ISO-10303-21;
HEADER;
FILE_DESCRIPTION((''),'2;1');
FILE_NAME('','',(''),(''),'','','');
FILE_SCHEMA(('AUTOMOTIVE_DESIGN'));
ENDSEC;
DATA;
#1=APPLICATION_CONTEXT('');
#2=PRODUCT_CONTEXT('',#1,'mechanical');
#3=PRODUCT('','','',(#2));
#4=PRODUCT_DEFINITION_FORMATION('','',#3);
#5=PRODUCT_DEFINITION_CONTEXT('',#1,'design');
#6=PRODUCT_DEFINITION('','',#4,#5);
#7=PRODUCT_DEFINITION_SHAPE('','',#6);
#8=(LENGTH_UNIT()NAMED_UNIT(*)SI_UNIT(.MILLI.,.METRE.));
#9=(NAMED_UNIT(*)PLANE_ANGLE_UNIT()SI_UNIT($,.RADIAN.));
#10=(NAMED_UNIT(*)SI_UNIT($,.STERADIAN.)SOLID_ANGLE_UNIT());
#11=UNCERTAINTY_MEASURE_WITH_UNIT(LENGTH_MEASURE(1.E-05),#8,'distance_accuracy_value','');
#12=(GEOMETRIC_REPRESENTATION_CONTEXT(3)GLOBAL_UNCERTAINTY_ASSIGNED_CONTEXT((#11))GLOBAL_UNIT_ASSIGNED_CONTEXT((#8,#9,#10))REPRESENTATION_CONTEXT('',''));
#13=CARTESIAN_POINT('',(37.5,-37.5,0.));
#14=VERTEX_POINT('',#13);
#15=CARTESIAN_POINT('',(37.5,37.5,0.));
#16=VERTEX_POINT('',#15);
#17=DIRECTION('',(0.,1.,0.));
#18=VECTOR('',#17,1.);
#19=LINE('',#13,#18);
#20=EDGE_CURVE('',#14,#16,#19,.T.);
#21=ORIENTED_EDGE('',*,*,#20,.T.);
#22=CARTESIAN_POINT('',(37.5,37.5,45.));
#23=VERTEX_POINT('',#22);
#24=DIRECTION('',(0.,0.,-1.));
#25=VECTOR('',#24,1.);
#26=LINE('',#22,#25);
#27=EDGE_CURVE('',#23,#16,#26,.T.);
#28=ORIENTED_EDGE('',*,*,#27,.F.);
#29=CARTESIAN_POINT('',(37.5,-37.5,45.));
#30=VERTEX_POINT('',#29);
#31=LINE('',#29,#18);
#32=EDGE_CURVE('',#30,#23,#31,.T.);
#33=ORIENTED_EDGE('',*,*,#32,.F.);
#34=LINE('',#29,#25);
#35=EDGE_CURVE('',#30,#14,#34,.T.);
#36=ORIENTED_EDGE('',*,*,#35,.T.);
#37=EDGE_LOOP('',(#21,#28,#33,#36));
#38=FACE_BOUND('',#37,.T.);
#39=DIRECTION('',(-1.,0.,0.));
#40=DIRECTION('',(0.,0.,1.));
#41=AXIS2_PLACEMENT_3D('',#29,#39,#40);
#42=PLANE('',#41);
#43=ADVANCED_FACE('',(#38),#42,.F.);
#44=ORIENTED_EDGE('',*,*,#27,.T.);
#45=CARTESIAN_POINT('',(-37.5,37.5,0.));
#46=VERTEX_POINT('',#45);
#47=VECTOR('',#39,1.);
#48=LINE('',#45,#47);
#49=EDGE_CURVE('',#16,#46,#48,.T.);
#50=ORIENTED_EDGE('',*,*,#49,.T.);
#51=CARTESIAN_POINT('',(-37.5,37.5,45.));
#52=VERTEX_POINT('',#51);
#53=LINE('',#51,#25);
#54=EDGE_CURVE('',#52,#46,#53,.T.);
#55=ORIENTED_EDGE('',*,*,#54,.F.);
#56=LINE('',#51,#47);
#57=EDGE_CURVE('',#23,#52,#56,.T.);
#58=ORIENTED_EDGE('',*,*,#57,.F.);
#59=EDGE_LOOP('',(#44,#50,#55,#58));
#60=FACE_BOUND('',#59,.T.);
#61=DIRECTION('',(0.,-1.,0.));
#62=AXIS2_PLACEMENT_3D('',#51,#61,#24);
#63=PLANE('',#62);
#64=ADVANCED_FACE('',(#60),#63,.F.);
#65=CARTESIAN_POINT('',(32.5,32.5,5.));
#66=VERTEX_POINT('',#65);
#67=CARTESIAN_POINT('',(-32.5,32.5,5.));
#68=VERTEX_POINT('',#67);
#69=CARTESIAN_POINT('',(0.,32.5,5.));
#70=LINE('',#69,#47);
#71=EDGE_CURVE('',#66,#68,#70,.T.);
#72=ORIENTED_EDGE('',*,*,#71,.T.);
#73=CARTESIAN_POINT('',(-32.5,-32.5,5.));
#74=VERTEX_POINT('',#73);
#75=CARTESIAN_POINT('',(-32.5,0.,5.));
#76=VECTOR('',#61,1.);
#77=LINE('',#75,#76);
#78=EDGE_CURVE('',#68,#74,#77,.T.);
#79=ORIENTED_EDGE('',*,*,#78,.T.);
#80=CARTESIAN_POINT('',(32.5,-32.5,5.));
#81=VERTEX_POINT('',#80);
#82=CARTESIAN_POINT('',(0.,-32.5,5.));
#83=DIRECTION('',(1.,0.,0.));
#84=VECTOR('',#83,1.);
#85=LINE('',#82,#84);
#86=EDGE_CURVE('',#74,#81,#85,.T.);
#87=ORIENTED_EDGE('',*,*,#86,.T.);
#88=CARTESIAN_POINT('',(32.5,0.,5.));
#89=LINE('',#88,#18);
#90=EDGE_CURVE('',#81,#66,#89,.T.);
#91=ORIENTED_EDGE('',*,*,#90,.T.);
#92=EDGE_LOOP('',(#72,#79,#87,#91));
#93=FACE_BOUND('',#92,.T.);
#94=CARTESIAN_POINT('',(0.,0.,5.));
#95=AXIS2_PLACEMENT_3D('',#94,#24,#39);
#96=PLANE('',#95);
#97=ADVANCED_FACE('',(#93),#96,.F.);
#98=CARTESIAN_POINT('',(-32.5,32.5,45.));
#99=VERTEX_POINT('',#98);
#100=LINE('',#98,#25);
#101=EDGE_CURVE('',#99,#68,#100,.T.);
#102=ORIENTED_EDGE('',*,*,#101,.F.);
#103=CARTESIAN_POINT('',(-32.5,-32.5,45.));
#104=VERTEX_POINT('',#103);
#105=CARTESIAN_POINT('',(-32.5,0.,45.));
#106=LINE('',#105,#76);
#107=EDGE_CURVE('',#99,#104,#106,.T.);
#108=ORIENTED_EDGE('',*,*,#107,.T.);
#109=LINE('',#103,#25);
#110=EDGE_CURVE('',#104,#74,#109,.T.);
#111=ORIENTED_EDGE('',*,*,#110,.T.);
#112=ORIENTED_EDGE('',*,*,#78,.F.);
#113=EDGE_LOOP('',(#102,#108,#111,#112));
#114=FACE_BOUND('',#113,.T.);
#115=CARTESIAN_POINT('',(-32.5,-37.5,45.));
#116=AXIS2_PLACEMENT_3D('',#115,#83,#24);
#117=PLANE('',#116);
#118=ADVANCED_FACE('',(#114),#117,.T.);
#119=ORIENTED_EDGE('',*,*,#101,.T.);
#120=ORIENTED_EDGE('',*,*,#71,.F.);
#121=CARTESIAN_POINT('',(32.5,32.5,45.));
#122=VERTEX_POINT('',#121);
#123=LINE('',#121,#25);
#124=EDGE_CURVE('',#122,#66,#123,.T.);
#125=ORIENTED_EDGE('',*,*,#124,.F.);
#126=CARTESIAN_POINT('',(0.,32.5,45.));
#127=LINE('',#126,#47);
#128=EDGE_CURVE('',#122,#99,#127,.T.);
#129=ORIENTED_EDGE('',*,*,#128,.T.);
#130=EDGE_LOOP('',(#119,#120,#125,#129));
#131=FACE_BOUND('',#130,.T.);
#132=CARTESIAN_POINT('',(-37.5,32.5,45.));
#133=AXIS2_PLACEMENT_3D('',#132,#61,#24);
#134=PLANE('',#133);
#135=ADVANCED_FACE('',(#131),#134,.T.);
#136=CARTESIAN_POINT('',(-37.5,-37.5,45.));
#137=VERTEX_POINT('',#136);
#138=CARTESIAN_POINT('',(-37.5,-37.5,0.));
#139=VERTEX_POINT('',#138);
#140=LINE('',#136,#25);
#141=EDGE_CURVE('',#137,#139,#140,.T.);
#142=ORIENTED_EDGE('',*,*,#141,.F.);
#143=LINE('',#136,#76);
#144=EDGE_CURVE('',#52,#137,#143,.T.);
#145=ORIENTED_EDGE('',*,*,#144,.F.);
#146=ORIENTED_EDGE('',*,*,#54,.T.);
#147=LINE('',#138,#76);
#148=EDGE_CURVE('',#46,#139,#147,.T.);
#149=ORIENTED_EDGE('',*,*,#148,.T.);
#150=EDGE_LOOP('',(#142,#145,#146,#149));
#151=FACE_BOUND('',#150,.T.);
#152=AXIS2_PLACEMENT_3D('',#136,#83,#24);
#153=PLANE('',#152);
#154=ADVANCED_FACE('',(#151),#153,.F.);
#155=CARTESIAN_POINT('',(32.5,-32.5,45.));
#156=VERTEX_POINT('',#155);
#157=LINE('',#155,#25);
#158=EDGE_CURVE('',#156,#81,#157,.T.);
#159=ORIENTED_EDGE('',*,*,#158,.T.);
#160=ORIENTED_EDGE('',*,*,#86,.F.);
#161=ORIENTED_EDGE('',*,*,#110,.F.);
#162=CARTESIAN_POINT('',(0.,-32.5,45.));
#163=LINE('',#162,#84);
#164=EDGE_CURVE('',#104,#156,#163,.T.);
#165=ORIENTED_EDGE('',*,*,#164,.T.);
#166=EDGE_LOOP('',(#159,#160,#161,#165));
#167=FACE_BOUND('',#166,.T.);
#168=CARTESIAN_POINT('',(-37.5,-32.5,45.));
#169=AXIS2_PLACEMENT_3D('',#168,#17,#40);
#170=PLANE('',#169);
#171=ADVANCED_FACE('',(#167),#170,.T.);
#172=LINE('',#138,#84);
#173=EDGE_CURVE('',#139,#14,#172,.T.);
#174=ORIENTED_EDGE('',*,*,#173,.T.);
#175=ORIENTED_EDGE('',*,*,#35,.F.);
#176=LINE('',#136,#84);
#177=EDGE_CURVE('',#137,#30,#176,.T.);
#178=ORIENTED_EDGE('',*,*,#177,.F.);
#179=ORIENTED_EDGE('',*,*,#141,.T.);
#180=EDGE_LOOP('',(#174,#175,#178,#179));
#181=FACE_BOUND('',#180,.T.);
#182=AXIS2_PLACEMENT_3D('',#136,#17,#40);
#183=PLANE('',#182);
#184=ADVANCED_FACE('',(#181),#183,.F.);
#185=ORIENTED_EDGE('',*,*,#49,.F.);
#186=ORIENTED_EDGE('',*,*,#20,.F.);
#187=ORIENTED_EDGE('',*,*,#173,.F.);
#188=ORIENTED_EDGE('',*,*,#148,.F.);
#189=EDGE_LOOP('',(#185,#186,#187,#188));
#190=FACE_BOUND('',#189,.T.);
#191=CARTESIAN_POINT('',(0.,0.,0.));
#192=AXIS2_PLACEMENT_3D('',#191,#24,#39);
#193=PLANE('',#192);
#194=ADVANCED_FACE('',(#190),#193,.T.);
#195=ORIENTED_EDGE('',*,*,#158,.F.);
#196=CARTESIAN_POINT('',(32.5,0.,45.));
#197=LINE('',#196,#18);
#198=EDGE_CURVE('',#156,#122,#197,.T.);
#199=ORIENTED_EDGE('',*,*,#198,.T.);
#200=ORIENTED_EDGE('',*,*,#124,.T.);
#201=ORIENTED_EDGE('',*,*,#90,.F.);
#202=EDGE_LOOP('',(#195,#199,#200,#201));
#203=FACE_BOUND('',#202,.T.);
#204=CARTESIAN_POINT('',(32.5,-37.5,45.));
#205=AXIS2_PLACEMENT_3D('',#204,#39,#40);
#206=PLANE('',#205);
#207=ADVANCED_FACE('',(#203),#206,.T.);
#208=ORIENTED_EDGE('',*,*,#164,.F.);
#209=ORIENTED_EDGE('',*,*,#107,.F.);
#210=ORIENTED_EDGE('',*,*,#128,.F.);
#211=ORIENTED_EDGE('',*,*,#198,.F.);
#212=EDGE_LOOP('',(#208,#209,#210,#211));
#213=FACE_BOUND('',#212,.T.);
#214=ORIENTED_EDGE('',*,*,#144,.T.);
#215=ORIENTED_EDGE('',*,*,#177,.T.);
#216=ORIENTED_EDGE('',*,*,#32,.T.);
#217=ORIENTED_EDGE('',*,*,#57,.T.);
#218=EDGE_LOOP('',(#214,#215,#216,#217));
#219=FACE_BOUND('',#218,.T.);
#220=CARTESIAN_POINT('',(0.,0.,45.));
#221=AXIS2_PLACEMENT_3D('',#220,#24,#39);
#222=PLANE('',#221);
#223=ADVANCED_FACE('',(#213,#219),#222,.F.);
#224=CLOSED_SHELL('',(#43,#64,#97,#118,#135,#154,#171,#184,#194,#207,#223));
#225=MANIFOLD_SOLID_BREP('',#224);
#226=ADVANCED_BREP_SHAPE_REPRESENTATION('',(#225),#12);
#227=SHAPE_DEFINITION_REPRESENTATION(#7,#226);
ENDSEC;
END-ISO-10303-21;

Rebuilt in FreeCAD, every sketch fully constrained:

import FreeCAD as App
import Part
import Sketcher
from FreeCAD import Vector


def faces_at(feature, points):
    """Names of the faces that lie closest to the given points."""
    faces = feature.Shape.Faces
    near = lambda p: min(range(len(faces)), key=lambda i: faces[i].distToShape(Part.Vertex(*p))[0])
    return sorted({f"Face{near(p) + 1}" for p in points})


def add_polygon(sketch, points):
    """Adds a closed chain of lines whose ends are joined by coincident constraints."""
    first, n = sketch.GeometryCount, len(points)
    for a, b in zip(points, points[1:] + points[:1]):
        sketch.addGeometry(Part.LineSegment(App.Vector(*a, 0), App.Vector(*b, 0)), False)
    for i in range(n):
        sketch.addConstraint(Sketcher.Constraint("Coincident", first + i, 2, first + (i + 1) % n, 1))

doc = App.newDocument("Part")
body = doc.addObject("PartDesign::Body", "Body")

sketch1 = body.newObject("Sketcher::SketchObject", "Sketch")
sketch1.AttachmentSupport = (doc.getObject("XY_Plane"), [""])
sketch1.MapMode = "FlatFace"
add_polygon(sketch1, [(-38, 38), (-38, -38), (38, -38), (38, 38)])
sketch1.addConstraint([
    Sketcher.Constraint("Vertical", 0),
    Sketcher.Constraint("Horizontal", 1),
    Sketcher.Constraint("Vertical", 2),
    Sketcher.Constraint("Horizontal", 3),
    Sketcher.Constraint("Symmetric", 0, 2, 2, 2, -1, 1),
    Sketcher.Constraint("Equal", 3, 0),
    Sketcher.Constraint("DistanceX", 1, 1, 1, 2, 75.0),
])
pad1 = body.newObject("PartDesign::Pad", "Pad")
pad1.Profile = sketch1
pad1.Length = 45
doc.recompute()

thickness = body.newObject("PartDesign::Thickness", "Thickness")
thickness.Base = (pad1, faces_at(pad1, [(0, 0, 45)]))
thickness.Value = 5
thickness.Reversed = True
thickness.Join = "Intersection"

doc.recompute()
